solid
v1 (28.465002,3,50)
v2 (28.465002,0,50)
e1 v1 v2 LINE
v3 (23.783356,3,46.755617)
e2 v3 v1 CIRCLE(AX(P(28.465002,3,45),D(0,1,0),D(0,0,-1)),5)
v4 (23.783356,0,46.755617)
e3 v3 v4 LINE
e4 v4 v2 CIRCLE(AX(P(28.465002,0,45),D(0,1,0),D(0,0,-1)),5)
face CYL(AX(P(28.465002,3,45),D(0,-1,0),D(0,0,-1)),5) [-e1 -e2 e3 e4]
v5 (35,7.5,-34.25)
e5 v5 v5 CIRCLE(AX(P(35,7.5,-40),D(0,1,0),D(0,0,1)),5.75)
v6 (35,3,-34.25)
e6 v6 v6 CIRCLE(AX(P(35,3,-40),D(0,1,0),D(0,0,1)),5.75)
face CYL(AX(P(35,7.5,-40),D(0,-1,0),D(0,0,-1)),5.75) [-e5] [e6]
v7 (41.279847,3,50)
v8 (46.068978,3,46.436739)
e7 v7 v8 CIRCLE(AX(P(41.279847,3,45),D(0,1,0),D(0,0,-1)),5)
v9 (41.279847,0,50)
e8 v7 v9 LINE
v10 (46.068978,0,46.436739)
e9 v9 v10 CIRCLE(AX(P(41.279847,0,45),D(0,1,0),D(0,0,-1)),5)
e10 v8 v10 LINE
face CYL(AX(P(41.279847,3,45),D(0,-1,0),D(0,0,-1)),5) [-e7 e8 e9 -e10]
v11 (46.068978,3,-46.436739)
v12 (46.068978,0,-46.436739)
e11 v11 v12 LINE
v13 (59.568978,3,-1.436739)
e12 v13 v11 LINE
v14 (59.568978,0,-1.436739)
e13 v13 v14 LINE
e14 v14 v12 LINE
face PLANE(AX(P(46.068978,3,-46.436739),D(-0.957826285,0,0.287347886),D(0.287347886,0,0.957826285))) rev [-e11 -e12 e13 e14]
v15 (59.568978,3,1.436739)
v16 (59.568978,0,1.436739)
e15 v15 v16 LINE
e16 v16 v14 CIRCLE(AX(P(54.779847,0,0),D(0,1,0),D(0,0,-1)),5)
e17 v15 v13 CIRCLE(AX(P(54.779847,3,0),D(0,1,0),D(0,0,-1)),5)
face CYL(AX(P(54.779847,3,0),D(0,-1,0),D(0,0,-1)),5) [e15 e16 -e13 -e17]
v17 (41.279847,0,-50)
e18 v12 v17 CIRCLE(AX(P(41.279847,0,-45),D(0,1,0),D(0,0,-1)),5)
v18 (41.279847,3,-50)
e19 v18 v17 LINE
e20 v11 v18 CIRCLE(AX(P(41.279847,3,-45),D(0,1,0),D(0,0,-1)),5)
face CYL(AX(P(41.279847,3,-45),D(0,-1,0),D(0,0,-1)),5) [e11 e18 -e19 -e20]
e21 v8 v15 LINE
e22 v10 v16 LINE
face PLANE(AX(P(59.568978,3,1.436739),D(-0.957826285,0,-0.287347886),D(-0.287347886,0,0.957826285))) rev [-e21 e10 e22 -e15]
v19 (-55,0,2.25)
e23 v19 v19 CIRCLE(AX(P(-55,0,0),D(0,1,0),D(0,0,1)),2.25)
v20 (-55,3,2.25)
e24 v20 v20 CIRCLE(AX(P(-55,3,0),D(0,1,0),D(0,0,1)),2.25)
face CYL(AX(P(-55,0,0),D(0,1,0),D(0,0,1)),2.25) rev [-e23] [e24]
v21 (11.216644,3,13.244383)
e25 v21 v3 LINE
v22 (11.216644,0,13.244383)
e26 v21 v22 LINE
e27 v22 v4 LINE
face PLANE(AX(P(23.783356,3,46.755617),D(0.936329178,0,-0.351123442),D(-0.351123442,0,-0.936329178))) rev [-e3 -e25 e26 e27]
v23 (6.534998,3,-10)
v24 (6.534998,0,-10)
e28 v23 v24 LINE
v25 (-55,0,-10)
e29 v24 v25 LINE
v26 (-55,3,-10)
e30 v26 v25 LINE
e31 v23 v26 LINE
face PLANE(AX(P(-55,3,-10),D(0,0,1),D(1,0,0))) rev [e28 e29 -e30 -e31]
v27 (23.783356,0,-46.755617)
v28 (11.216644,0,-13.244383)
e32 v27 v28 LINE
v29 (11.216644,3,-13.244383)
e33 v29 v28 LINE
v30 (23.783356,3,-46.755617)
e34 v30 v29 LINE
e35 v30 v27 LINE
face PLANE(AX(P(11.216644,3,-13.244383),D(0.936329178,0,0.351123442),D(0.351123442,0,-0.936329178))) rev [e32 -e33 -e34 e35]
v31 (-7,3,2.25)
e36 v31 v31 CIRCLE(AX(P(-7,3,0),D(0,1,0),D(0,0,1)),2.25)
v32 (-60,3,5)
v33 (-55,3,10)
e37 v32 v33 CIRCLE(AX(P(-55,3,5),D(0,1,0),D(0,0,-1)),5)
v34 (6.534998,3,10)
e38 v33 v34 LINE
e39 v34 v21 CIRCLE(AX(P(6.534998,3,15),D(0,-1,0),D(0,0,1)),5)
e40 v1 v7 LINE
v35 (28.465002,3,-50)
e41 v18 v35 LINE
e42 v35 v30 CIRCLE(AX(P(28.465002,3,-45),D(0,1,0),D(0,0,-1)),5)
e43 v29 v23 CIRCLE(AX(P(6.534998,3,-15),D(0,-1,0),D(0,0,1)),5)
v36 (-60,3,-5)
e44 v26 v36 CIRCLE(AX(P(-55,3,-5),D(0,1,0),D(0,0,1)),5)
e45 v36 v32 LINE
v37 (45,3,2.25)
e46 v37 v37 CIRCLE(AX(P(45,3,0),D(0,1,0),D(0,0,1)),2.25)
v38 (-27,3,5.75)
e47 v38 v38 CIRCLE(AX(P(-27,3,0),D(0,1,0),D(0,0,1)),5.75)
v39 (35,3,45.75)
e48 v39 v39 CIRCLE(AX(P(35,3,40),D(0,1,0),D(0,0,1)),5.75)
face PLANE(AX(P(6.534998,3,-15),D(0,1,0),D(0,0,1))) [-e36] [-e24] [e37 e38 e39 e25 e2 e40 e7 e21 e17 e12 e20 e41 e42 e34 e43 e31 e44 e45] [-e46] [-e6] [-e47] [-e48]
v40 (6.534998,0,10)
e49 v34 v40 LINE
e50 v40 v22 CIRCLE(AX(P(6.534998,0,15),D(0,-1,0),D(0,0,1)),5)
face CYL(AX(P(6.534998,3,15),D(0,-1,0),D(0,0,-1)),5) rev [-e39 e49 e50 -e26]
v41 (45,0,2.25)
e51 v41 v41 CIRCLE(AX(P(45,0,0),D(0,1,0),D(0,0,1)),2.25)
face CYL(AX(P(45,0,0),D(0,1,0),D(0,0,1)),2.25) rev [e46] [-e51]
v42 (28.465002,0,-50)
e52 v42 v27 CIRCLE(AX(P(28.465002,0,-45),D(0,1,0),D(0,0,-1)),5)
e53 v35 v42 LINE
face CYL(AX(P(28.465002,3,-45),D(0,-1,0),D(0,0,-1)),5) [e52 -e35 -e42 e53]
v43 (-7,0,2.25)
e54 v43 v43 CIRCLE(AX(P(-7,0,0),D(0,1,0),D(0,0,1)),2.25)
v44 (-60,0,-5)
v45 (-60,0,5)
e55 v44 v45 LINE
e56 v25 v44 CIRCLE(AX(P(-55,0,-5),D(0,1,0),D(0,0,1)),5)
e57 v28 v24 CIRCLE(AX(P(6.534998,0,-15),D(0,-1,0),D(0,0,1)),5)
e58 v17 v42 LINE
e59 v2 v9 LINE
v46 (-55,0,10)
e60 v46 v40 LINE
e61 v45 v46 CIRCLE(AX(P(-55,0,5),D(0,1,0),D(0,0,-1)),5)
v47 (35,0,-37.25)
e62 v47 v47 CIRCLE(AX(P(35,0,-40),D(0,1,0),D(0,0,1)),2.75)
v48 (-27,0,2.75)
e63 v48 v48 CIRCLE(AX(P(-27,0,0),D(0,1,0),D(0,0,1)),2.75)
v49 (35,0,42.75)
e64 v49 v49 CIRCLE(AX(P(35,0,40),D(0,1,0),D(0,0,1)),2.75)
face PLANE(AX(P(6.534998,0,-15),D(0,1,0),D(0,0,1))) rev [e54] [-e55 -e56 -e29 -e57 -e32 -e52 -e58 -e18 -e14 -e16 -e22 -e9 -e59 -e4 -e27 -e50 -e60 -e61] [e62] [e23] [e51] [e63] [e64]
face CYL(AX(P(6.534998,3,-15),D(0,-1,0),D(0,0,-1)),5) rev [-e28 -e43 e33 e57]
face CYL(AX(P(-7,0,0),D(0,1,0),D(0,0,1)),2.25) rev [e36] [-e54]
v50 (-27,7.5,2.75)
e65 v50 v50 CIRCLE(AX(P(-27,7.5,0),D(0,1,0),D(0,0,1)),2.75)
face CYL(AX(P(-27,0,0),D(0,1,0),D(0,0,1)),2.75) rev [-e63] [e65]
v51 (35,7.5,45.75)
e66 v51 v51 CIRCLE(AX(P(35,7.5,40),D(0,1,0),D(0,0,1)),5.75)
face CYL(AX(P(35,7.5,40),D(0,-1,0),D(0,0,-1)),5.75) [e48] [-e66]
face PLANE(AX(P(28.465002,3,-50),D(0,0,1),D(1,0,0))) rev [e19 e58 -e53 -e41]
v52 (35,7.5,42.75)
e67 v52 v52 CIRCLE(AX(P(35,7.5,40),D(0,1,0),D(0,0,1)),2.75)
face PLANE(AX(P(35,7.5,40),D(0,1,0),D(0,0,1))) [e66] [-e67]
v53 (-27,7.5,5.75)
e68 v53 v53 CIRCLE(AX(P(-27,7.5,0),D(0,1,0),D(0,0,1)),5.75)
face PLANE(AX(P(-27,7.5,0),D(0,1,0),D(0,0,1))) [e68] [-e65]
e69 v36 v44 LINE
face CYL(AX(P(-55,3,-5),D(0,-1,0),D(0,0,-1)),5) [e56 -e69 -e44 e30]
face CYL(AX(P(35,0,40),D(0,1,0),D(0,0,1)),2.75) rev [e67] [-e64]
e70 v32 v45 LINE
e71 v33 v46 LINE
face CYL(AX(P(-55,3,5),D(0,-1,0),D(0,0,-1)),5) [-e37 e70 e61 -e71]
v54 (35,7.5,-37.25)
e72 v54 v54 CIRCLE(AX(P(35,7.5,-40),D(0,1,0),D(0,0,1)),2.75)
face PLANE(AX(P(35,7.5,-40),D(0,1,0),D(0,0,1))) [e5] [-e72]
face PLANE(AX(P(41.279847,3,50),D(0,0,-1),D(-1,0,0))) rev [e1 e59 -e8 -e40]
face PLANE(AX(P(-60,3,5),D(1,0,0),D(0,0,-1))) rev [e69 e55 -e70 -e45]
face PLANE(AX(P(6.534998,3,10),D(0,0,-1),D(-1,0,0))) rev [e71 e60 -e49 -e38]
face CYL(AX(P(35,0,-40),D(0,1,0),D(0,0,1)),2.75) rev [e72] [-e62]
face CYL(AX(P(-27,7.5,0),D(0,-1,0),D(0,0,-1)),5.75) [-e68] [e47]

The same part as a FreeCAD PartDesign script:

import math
import FreeCAD as App
import Part
import Sketcher
Q = App.Units.Quantity

doc = App.newDocument("Part")
body = doc.addObject("PartDesign::Body", "Body")

# Sketch on XZ plane
sketch1 = body.newObject("Sketcher::SketchObject", "Sketch")
sketch1.AttachmentSupport = (doc.getObject("XZ_Plane"), [""])
sketch1.MapMode = "FlatFace"
sketch1.addGeometry([
    Part.LineSegment(App.Vector(6.5, -10, 0), App.Vector(-55, -10, 0)),  # 0
    Part.ArcOfCircle(Part.Circle(App.Vector(-55, -5, 0), App.Vector(0, 0, 1), 5), math.radians(180), math.radians(270)),  # 1
    Part.LineSegment(App.Vector(-60, -5, 0), App.Vector(-60, 5, 0)),  # 2
    Part.ArcOfCircle(Part.Circle(App.Vector(-55, 5, 0), App.Vector(0, 0, 1), 5), math.radians(90), math.radians(180)),  # 3
    Part.LineSegment(App.Vector(-55, 10, 0), App.Vector(6.5, 10, 0)),  # 4
    Part.ArcOfCircle(Part.Circle(App.Vector(6.5, 15, 0), App.Vector(0, 0, 1), 5), math.radians(-90), math.radians(-21)),  # 5
    Part.LineSegment(App.Vector(11.2, 13.2, 0), App.Vector(23.8, 46.8, 0)),  # 6
    Part.ArcOfCircle(Part.Circle(App.Vector(28.5, 45, 0), App.Vector(0, 0, 1), 5), math.radians(90), math.radians(159)),  # 7
    Part.LineSegment(App.Vector(28.5, 50, 0), App.Vector(41.3, 50, 0)),  # 8
    Part.ArcOfCircle(Part.Circle(App.Vector(41.3, 45, 0), App.Vector(0, 0, 1), 5), math.radians(17), math.radians(90)),  # 9
    Part.LineSegment(App.Vector(46.1, 46.4, 0), App.Vector(59.6, 1.4, 0)),  # 10
    Part.ArcOfCircle(Part.Circle(App.Vector(54.8, 0, 0), App.Vector(0, 0, 1), 5), math.radians(-17), math.radians(17)),  # 11
    Part.LineSegment(App.Vector(59.6, -1.4, 0), App.Vector(46.1, -46.4, 0)),  # 12
    Part.ArcOfCircle(Part.Circle(App.Vector(41.3, -45, 0), App.Vector(0, 0, 1), 5), math.radians(-90), math.radians(-17)),  # 13
    Part.LineSegment(App.Vector(41.3, -50, 0), App.Vector(28.5, -50, 0)),  # 14
    Part.ArcOfCircle(Part.Circle(App.Vector(28.5, -45, 0), App.Vector(0, 0, 1), 5), math.radians(-159), math.radians(-90)),  # 15
    Part.LineSegment(App.Vector(23.8, -46.8, 0), App.Vector(11.2, -13.2, 0)),  # 16
    Part.ArcOfCircle(Part.Circle(App.Vector(6.5, -15, 0), App.Vector(0, 0, 1), 5), math.radians(21), math.radians(90)),  # 17
], False)
sketch1.addConstraint([
    Sketcher.Constraint("Tangent", 0, 2, 1, 2),
    Sketcher.Constraint("Tangent", 1, 1, 2, 1),
    Sketcher.Constraint("Tangent", 2, 2, 3, 2),
    Sketcher.Constraint("Tangent", 3, 1, 4, 1),
    Sketcher.Constraint("Tangent", 4, 2, 5, 1),
    Sketcher.Constraint("Tangent", 5, 2, 6, 1),
    Sketcher.Constraint("Tangent", 6, 2, 7, 2),
    Sketcher.Constraint("Tangent", 7, 1, 8, 1),
    Sketcher.Constraint("Tangent", 8, 2, 9, 2),
    Sketcher.Constraint("Tangent", 9, 1, 10, 1),
    Sketcher.Constraint("Tangent", 10, 2, 11, 2),
    Sketcher.Constraint("Tangent", 11, 1, 12, 1),
    Sketcher.Constraint("Tangent", 12, 2, 13, 2),
    Sketcher.Constraint("Tangent", 13, 1, 14, 1),
    Sketcher.Constraint("Tangent", 14, 2, 15, 2),
    Sketcher.Constraint("Tangent", 15, 1, 16, 1),
    Sketcher.Constraint("Tangent", 16, 2, 17, 1),
    Sketcher.Constraint("Tangent", 17, 2, 0, 1),
    Sketcher.Constraint("Horizontal", 0),
    Sketcher.Constraint("Vertical", 2),
    Sketcher.Constraint("Horizontal", 4),
    Sketcher.Constraint("Horizontal", 8),
    Sketcher.Constraint("Horizontal", 14),
    Sketcher.Constraint("Equal", 1, 3),
    Sketcher.Constraint("Equal", 3, 5),
    Sketcher.Constraint("Equal", 5, 7),
    Sketcher.Constraint("Equal", 7, 9),
    Sketcher.Constraint("Equal", 9, 11),
    Sketcher.Constraint("Equal", 11, 13),
    Sketcher.Constraint("Equal", 13, 15),
    Sketcher.Constraint("Equal", 15, 17),
    Sketcher.Constraint("Symmetric", 9, 3, 13, 3, -1),
    Sketcher.Constraint("Symmetric", 5, 3, 17, 3, -1),
    Sketcher.Constraint("PointOnObject", 11, 3, -1),
    Sketcher.Constraint("Vertical", 7, 3, 15, 3),
    Sketcher.Constraint("Radius", 1, Q("5 mm")),
    Sketcher.Constraint("DistanceY", 2, 1, 2, 2, Q("10 mm")),
    Sketcher.Constraint("DistanceX", 1, 3, -1, 1, Q("55 mm")),
    Sketcher.Constraint("DistanceY", -1, 1, 7, 3, Q("45 mm")),
    Sketcher.Constraint("DistanceX", 9, 3, 11, 3, Q("13.5 mm")),
    Sketcher.Constraint("DistanceX", 0, 2, 0, 1, Q("61.534998 mm")),
    Sketcher.Constraint("DistanceX", 8, 1, 8, 2, Q("12.814844 mm")),
    Sketcher.Constraint("DistanceX", -1, 1, 9, 1, Q("46.068978 mm")),
])
pad1 = body.newObject("PartDesign::Pad", "Pad")
pad1.Profile = sketch1
pad1.Length = 3
pad1.Reversed = True

# Sketch on XZ plane
sketch2 = body.newObject("Sketcher::SketchObject", "Sketch001")
sketch2.AttachmentSupport = (doc.getObject("XZ_Plane"), [""])
sketch2.MapMode = "FlatFace"
sketch2.AttachmentOffset = App.Placement(App.Vector(0, 0, -3), App.Rotation())
sketch2.addGeometry([
    Part.Circle(App.Vector(-27, 0, 0), App.Vector(0, 0, 1), 2.8),
    Part.Circle(App.Vector(35, -40, 0), App.Vector(0, 0, 1), 2.8),
    Part.Circle(App.Vector(35, 40, 0), App.Vector(0, 0, 1), 2.8),
], False)
sketch2.addConstraint([
    Sketcher.Constraint("Equal", 0, 1),
    Sketcher.Constraint("Equal", 1, 2),
    Sketcher.Constraint("Symmetric", 1, 3, 2, 3, -1),
    Sketcher.Constraint("PointOnObject", 0, 3, -1),
    Sketcher.Constraint("Diameter", 0, Q("5.5 mm")),
    Sketcher.Constraint("DistanceX", 0, 3, -1, 1, Q("27 mm")),
    Sketcher.Constraint("DistanceX", -1, 1, 1, 3, Q("35 mm")),
    Sketcher.Constraint("DistanceY", 1, 3, -1, 1, Q("40 mm")),
])
pocket1 = body.newObject("PartDesign::Pocket", "Pocket")
pocket1.Profile = sketch2
pocket1.Type = "ThroughAll"
pocket1.Reversed = True

# Sketch on XZ plane
sketch3 = body.newObject("Sketcher::SketchObject", "Sketch002")
sketch3.AttachmentSupport = (doc.getObject("XZ_Plane"), [""])
sketch3.MapMode = "FlatFace"
sketch3.AttachmentOffset = App.Placement(App.Vector(0, 0, -3), App.Rotation())
sketch3.addGeometry([
    Part.Circle(App.Vector(-27, 0, 0), App.Vector(0, 0, 1), 5.8),  # 0
    Part.Circle(App.Vector(-27, 0, 0), App.Vector(0, 0, 1), 2.8),  # 1
    Part.Circle(App.Vector(35, -40, 0), App.Vector(0, 0, 1), 5.8),  # 2
    Part.Circle(App.Vector(35, -40, 0), App.Vector(0, 0, 1), 2.8),  # 3
    Part.Circle(App.Vector(35, 40, 0), App.Vector(0, 0, 1), 5.8),  # 4
    Part.Circle(App.Vector(35, 40, 0), App.Vector(0, 0, 1), 2.8),  # 5
], False)
sketch3.addConstraint([
    Sketcher.Constraint("Coincident", 1, 3, 0, 3),
    Sketcher.Constraint("Coincident", 3, 3, 2, 3),
    Sketcher.Constraint("Coincident", 5, 3, 4, 3),
    Sketcher.Constraint("Equal", 0, 2),
    Sketcher.Constraint("Equal", 1, 3),
    Sketcher.Constraint("Equal", 2, 4),
    Sketcher.Constraint("Equal", 3, 5),
    Sketcher.Constraint("Symmetric", 2, 3, 4, 3, -1),
    Sketcher.Constraint("PointOnObject", 0, 3, -1),
    Sketcher.Constraint("Diameter", 0, Q("11.5 mm")),
    Sketcher.Constraint("Diameter", 1, Q("5.5 mm")),
    Sketcher.Constraint("DistanceX", 0, 3, -1, 1, Q("27 mm")),
    Sketcher.Constraint("DistanceX", -1, 1, 2, 3, Q("35 mm")),
    Sketcher.Constraint("DistanceY", 2, 3, -1, 1, Q("40 mm")),
])
pad2 = body.newObject("PartDesign::Pad", "Pad001")
pad2.Profile = sketch3
pad2.Length = 4.5
pad2.Reversed = True

# Sketch on XZ plane
sketch4 = body.newObject("Sketcher::SketchObject", "Sketch003")
sketch4.AttachmentSupport = (doc.getObject("XZ_Plane"), [""])
sketch4.MapMode = "FlatFace"
sketch4.AttachmentOffset = App.Placement(App.Vector(0, 0, -3), App.Rotation())
sketch4.addGeometry([
    Part.Circle(App.Vector(-55, 0, 0), App.Vector(0, 0, 1), 2.2),
    Part.Circle(App.Vector(45, 0, 0), App.Vector(0, 0, 1), 2.2),
    Part.Circle(App.Vector(-7, 0, 0), App.Vector(0, 0, 1), 2.2),
], False)
sketch4.addConstraint([
    Sketcher.Constraint("Equal", 0, 1),
    Sketcher.Constraint("Equal", 1, 2),
    Sketcher.Constraint("PointOnObject", 0, 3, -1),
    Sketcher.Constraint("PointOnObject", 1, 3, -1),
    Sketcher.Constraint("PointOnObject", 2, 3, -1),
    Sketcher.Constraint("Diameter", 0, Q("4.5 mm")),
    Sketcher.Constraint("DistanceX", 0, 3, -1, 1, Q("55 mm")),
    Sketcher.Constraint("DistanceX", -1, 1, 1, 3, Q("45 mm")),
    Sketcher.Constraint("DistanceX", 2, 3, -1, 1, Q("7 mm")),
])
pocket2 = body.newObject("PartDesign::Pocket", "Pocket001")
pocket2.Profile = sketch4
pocket2.Type = "ThroughAll"
pocket2.Reversed = True

doc.recompute()
